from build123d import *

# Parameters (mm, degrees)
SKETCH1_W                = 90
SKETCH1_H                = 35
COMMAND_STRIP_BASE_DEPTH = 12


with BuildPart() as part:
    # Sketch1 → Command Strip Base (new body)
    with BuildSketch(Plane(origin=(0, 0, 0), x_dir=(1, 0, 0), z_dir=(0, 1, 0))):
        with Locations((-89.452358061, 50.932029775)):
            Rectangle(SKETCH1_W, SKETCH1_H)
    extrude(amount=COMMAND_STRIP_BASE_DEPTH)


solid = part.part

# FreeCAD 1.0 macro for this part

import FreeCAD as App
import Part
import Sketcher

V = App.Vector


def add_polygon(sketch, points):
    """Adds a closed chain of lines whose ends are joined by coincident constraints."""
    first, n = sketch.GeometryCount, len(points)
    for a, b in zip(points, points[1:] + points[:1]):
        sketch.addGeometry(Part.LineSegment(App.Vector(*a, 0), App.Vector(*b, 0)), False)
    for i in range(n):
        sketch.addConstraint(Sketcher.Constraint("Coincident", first + i, 2, first + (i + 1) % n, 1))

doc = App.newDocument("Part")
body = doc.addObject("PartDesign::Body", "Body")

# Sketch on XZ plane
sketch1 = body.newObject("Sketcher::SketchObject", "Sketch")
sketch1.AttachmentSupport = (doc.getObject("XZ_Plane"), [""])
sketch1.MapMode = "FlatFace"
add_polygon(sketch1, [(-134, -68), (-134, -33), (-44, -33), (-44, -68)])  # lines 0-3
sketch1.addConstraint([
    Sketcher.Constraint("Vertical", 0),
    Sketcher.Constraint("Horizontal", 1),
    Sketcher.Constraint("Vertical", 2),
    Sketcher.Constraint("Horizontal", 3),
    Sketcher.Constraint("DistanceX", 1, 1, 1, 2, 90.0),
    Sketcher.Constraint("DistanceY", 0, 1, 0, 2, 35.0),
    Sketcher.Constraint("DistanceX", 0, 2, -1, 1, 134.452358),
    Sketcher.Constraint("DistanceY", 0, 2, -1, 1, 33.43203),
])
pad1 = body.newObject("PartDesign::Pad", "Pad")
pad1.Profile = sketch1
pad1.Length = 12
pad1.Reversed = True

doc.recompute()
